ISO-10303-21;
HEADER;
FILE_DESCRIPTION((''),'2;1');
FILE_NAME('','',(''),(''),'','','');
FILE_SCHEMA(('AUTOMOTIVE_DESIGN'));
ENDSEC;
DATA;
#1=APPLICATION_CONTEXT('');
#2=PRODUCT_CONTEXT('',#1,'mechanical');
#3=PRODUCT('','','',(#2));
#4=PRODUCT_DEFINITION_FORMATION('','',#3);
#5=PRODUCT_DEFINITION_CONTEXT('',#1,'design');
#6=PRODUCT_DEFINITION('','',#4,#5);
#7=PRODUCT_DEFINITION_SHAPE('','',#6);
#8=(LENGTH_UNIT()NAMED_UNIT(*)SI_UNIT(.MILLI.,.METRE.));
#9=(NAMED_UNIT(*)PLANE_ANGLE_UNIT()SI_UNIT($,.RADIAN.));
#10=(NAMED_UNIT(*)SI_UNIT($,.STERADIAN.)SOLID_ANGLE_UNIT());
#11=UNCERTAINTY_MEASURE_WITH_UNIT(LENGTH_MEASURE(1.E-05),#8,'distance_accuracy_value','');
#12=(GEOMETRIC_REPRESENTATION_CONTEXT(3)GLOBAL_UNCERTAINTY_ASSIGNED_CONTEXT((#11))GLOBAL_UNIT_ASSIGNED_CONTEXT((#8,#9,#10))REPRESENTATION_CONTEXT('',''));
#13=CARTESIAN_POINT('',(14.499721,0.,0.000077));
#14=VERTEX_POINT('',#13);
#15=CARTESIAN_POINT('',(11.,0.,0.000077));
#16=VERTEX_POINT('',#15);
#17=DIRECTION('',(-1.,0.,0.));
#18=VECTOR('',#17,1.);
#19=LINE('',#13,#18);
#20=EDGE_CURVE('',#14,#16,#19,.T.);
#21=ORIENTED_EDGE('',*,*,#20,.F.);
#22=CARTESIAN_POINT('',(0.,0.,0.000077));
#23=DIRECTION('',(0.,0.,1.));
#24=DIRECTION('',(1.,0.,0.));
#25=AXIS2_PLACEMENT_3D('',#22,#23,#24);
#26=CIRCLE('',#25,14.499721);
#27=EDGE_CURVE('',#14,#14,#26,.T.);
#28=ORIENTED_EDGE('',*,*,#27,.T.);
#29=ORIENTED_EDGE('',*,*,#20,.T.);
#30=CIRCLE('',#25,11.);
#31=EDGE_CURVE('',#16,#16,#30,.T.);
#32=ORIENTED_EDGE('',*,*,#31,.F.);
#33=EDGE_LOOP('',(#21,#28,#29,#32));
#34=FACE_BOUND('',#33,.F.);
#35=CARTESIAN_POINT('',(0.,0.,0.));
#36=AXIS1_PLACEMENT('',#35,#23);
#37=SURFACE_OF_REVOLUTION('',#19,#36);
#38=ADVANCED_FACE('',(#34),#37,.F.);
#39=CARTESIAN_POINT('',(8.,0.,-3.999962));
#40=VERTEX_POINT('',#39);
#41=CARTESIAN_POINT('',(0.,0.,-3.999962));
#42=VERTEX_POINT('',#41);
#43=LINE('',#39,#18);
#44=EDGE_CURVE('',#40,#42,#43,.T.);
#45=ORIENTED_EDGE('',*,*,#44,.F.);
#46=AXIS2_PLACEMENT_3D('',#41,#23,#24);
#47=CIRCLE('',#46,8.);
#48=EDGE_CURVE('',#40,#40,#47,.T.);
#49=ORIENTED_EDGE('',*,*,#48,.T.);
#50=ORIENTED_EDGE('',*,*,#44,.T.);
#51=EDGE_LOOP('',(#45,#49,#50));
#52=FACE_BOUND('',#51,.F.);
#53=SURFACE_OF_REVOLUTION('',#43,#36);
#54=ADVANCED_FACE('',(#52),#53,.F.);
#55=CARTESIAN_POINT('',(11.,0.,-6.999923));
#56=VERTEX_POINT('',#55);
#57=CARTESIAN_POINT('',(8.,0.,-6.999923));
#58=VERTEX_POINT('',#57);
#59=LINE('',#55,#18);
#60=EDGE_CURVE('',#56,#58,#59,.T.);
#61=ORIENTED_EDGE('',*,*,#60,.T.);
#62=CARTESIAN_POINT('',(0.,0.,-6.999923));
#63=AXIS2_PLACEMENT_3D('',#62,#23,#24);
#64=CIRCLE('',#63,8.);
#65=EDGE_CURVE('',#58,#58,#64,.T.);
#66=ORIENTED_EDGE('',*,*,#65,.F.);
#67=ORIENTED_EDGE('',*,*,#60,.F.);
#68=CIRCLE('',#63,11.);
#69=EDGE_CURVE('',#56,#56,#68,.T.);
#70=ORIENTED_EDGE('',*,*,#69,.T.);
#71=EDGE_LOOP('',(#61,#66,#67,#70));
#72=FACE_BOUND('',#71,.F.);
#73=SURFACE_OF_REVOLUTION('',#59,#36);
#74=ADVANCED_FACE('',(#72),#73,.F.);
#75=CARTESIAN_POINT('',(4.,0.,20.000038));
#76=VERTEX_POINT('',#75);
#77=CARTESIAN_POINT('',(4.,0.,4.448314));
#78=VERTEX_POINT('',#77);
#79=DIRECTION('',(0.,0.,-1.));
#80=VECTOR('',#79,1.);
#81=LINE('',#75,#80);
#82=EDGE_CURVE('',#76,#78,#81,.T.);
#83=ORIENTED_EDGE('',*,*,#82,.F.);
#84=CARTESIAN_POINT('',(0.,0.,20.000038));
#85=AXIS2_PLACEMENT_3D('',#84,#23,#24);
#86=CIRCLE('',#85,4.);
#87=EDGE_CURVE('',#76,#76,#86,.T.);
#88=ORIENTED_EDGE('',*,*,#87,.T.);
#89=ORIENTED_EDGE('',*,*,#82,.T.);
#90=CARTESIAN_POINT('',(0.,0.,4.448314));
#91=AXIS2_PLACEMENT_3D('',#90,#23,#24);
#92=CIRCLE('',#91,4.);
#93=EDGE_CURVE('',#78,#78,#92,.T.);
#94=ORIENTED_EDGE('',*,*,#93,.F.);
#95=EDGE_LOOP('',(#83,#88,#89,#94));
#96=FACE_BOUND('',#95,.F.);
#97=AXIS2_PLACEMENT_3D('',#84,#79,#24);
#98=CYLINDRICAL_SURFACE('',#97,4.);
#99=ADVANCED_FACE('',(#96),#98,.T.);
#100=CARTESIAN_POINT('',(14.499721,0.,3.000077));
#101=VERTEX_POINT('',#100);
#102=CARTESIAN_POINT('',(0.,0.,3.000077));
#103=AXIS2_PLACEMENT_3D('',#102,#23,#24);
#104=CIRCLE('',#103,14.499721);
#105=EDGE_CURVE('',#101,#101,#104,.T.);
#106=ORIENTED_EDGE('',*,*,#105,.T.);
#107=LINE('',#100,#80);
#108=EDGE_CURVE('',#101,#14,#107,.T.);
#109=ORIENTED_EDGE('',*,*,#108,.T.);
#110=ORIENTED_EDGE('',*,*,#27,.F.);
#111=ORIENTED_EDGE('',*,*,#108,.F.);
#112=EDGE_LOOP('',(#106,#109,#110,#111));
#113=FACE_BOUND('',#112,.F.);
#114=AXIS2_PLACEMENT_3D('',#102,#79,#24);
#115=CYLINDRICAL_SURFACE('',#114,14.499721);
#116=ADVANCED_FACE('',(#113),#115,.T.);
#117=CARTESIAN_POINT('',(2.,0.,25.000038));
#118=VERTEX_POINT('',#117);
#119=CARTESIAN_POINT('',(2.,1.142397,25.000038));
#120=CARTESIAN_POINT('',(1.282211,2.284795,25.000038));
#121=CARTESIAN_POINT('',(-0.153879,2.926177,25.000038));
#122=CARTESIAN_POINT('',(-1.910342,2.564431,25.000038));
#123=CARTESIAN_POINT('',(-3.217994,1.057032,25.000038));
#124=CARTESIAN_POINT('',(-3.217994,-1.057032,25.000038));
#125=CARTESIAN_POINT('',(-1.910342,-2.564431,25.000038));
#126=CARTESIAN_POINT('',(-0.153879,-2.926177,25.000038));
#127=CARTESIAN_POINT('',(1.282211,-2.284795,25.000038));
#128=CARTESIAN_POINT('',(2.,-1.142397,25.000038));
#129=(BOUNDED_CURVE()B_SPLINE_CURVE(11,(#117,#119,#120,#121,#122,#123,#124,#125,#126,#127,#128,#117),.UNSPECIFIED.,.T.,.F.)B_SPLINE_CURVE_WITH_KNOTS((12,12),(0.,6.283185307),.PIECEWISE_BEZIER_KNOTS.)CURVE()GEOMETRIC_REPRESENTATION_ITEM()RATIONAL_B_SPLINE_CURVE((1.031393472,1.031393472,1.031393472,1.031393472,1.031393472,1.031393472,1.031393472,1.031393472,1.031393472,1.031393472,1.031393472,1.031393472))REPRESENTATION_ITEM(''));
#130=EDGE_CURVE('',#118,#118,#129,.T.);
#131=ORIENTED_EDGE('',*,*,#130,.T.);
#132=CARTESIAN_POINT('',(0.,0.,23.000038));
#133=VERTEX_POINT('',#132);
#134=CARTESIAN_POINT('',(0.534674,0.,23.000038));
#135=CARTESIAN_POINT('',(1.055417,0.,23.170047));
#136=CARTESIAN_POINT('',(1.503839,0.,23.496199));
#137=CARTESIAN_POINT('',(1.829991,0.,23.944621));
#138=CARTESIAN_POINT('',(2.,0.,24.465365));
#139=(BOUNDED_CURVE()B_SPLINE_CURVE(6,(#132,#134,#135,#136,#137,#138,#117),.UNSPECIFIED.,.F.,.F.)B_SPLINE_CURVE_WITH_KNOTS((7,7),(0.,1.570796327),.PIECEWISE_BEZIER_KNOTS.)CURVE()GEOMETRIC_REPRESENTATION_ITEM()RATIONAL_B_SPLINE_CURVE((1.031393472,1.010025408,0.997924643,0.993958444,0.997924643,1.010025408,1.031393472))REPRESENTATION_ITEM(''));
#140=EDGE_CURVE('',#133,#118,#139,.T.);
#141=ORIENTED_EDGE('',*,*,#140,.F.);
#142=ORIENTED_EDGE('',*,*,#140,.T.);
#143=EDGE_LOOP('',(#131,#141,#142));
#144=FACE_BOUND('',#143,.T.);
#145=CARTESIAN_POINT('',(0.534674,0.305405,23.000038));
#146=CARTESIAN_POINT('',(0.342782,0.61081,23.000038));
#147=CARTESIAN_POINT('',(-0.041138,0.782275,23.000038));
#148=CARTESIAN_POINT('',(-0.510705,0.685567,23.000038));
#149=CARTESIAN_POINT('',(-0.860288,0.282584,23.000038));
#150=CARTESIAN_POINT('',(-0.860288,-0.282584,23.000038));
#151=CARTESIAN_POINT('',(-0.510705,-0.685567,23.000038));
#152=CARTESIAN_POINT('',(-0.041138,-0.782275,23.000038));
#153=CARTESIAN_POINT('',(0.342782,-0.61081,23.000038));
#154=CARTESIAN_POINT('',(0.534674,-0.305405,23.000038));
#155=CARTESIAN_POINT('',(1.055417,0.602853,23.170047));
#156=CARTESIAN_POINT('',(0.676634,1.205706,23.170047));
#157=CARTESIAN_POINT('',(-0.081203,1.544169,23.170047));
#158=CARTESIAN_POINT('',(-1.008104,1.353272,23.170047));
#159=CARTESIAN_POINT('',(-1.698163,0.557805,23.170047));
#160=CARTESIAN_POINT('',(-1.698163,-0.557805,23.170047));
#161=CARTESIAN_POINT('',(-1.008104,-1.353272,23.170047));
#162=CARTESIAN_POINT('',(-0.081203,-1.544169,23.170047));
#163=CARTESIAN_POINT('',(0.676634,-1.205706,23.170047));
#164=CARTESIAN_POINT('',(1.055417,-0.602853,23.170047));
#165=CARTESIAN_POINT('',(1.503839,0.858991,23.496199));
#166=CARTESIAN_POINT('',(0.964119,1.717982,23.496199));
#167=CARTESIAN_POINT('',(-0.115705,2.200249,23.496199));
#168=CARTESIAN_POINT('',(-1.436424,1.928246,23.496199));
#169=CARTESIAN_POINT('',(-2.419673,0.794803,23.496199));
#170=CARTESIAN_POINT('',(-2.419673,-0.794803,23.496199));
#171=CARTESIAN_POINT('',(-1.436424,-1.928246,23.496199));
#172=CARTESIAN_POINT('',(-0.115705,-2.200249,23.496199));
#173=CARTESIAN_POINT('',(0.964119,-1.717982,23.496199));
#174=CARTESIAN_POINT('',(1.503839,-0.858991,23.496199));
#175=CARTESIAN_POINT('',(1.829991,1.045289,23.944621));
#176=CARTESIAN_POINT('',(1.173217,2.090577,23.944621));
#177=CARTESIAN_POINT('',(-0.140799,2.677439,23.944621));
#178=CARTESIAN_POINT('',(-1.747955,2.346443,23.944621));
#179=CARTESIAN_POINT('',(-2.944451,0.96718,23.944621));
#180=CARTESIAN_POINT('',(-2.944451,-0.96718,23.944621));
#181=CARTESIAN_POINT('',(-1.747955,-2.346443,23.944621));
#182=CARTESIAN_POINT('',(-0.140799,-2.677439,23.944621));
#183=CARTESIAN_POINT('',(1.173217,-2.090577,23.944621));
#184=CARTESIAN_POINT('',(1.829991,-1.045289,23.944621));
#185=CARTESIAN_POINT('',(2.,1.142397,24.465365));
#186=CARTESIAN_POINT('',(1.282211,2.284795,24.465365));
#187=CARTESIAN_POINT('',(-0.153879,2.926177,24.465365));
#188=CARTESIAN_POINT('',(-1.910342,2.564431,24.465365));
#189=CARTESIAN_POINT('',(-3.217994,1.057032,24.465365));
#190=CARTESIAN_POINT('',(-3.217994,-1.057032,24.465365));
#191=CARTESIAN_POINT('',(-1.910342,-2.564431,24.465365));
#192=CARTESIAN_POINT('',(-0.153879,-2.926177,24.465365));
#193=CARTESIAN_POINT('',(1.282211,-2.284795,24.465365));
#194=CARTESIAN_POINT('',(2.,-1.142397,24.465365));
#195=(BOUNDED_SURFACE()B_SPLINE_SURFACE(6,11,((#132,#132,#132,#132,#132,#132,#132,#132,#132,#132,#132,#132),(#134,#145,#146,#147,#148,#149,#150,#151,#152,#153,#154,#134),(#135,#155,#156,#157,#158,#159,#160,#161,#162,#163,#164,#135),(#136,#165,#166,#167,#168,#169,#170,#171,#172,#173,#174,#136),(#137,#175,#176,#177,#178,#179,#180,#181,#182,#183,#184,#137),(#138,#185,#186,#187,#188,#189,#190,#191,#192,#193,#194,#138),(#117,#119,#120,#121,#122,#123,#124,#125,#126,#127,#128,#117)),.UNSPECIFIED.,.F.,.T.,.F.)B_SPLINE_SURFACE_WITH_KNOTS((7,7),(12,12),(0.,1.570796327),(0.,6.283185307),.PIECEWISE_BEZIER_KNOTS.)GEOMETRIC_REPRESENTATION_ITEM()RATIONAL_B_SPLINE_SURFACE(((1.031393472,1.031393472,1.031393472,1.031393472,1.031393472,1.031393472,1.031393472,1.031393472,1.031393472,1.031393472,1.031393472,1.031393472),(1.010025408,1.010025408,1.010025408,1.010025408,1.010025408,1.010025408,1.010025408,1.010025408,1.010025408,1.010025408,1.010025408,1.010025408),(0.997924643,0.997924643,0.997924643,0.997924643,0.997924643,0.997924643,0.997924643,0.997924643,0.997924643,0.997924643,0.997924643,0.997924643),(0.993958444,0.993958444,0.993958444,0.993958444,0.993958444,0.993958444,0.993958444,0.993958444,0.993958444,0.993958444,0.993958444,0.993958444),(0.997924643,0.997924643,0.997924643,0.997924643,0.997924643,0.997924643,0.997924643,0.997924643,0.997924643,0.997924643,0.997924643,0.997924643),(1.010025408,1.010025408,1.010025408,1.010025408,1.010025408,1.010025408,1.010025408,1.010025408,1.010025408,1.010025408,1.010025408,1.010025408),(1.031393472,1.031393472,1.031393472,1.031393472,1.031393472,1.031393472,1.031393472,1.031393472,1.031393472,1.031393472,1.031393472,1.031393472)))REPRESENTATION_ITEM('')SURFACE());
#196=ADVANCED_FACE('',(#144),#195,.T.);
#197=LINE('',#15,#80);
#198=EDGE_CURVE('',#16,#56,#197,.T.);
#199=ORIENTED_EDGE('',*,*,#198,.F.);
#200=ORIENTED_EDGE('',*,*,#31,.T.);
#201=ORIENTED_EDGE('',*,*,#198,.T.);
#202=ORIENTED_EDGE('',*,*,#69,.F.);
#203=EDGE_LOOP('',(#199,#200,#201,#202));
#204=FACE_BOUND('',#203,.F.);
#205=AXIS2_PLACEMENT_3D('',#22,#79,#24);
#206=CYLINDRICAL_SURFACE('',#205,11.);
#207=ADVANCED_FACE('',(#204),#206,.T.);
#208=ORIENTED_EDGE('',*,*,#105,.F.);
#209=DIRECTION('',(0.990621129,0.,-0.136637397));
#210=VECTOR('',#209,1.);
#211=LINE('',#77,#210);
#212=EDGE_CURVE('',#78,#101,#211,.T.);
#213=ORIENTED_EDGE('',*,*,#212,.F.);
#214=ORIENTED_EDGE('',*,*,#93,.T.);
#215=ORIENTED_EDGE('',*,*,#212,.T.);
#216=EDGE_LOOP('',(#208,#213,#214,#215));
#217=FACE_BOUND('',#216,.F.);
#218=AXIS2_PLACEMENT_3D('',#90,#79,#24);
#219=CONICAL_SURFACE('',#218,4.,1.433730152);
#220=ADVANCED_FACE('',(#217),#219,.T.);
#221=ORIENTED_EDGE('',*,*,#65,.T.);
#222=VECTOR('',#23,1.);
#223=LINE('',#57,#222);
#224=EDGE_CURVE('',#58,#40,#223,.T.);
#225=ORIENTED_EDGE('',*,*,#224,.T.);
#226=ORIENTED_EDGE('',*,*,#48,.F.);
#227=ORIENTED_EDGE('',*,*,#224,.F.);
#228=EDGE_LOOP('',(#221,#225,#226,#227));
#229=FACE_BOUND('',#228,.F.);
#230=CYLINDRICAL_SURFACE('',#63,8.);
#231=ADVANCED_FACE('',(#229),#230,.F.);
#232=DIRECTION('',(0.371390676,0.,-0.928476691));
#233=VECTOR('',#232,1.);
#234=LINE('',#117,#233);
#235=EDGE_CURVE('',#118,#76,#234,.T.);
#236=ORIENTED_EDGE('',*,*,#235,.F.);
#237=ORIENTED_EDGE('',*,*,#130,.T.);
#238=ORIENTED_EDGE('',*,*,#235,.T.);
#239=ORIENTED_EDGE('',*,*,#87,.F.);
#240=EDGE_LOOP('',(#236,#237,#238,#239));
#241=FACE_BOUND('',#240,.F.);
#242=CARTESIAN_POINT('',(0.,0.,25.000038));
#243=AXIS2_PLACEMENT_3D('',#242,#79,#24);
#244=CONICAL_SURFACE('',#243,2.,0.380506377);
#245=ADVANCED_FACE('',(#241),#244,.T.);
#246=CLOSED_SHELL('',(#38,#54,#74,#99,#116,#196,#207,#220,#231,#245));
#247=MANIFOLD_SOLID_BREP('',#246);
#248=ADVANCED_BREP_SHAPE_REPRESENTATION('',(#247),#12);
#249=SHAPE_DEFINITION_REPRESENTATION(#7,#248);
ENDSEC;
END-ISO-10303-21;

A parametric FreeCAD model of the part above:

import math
import FreeCAD as App
import Part
import Sketcher
from FreeCAD import Vector
Q = App.Units.Quantity

doc = App.newDocument("Part")
body = doc.addObject("PartDesign::Body", "Body")

sketch1 = body.newObject("Sketcher::SketchObject", "Sketch")
sketch1.AttachmentSupport = (doc.getObject("XZ_Plane"), [""])
sketch1.MapMode = "FlatFace"
sketch1.addGeometry([
    Part.LineSegment(Vector(-14.499721, 0.000077, 0), Vector(-11, 0.000077, 0)),
    Part.LineSegment(Vector(-11, 0.000077, 0), Vector(-11, -6.999923, 0)),
    Part.LineSegment(Vector(-11, -6.999923, 0), Vector(-8, -6.999923, 0)),
    Part.LineSegment(Vector(-8, -6.999923, 0), Vector(-8, -3.999962, 0)),
    Part.LineSegment(Vector(-8, -3.999962, 0), Vector(0, -3.999962, 0)),
    Part.LineSegment(Vector(0, -3.999962, 0), Vector(0, 23.000038, 0)),
    Part.ArcOfCircle(Part.Circle(Vector(0, 25.000038, 0), Vector(0, 0, 1), 2), math.radians(180), math.radians(270)),
    Part.LineSegment(Vector(-2, 25.000038, 0), Vector(-4, 20.000038, 0)),
    Part.LineSegment(Vector(-4, 20.000038, 0), Vector(-4, 4.448314, 0)),
    Part.LineSegment(Vector(-4, 4.448314, 0), Vector(-14.499721, 3.000077, 0)),
    Part.LineSegment(Vector(-14.499721, 3.000077, 0), Vector(-14.499721, 0.000077, 0)),
], False)
sketch1.addConstraint([
    Sketcher.Constraint("Coincident", 0, 2, 1, 1),
    Sketcher.Constraint("Coincident", 1, 2, 2, 1),
    Sketcher.Constraint("Coincident", 2, 2, 3, 1),
    Sketcher.Constraint("Coincident", 3, 2, 4, 1),
    Sketcher.Constraint("Coincident", 4, 2, 5, 1),
    Sketcher.Constraint("Coincident", 5, 2, 6, 2),
    Sketcher.Constraint("Coincident", 6, 1, 7, 1),
    Sketcher.Constraint("Coincident", 7, 2, 8, 1),
    Sketcher.Constraint("Coincident", 8, 2, 9, 1),
    Sketcher.Constraint("Coincident", 9, 2, 10, 1),
    Sketcher.Constraint("Coincident", 10, 2, 0, 1),
    Sketcher.Constraint("Horizontal", 0),
    Sketcher.Constraint("Vertical", 1),
    Sketcher.Constraint("Horizontal", 2),
    Sketcher.Constraint("Vertical", 3),
    Sketcher.Constraint("Horizontal", 4),
    Sketcher.Constraint("Vertical", 5),
    Sketcher.Constraint("Vertical", 8),
    Sketcher.Constraint("Vertical", 10),
    Sketcher.Constraint("PointOnObject", 6, 3, -2),
    Sketcher.Constraint("PointOnObject", 4, 2, -2),
    Sketcher.Constraint("Equal", 2, 10),
    Sketcher.Constraint("Radius", 6, Q("2 mm")),
    Sketcher.Constraint("DistanceX", 2, 1, 2, 2, Q("3 mm")),
    Sketcher.Constraint("DistanceX", 4, 1, 4, 2, Q("8 mm")),
    Sketcher.Constraint("DistanceY", 1, 2, 1, 1, Q("7 mm")),
    Sketcher.Constraint("DistanceY", 5, 1, 5, 2, Q("27 mm")),
    Sketcher.Constraint("DistanceX", 7, 2, -1, 1, Q("4 mm")),
    Sketcher.Constraint("DistanceY", 5, 2, 6, 1, Q("2 mm")),
    Sketcher.Constraint("DistanceY", 7, 2, 5, 2, Q("3 mm")),
    Sketcher.Constraint("DistanceX", 0, 1, 0, 2, Q("3.499721 mm")),
    Sketcher.Constraint("DistanceY", 3, 1, 3, 2, Q("2.999962 mm")),
    Sketcher.Constraint("Distance", 9, Q("10.599129 mm")),
    Sketcher.Constraint("DistanceY", -1, 1, 6, 3, Q("25.000038 mm")),
])

sketch2 = body.newObject("Sketcher::SketchObject", "Sketch001")
sketch2.AttachmentSupport = (doc.getObject("XY_Plane"), [""])
sketch2.MapMode = "FlatFace"
sketch2.addGeometry(Part.Circle(Vector(0, 0, 0), Vector(0, 0, 1), 2.5), False)
sketch2.addConstraint([
    Sketcher.Constraint("Coincident", 0, 3, -1, 1),
    Sketcher.Constraint("Diameter", 0, Q("5 mm")),
])
doc.recompute()

additivepipe = body.newObject("PartDesign::AdditivePipe", "AdditivePipe")
additivepipe.Profile = sketch1
additivepipe.Spine = (sketch2, ["Edge1"])

doc.recompute()
